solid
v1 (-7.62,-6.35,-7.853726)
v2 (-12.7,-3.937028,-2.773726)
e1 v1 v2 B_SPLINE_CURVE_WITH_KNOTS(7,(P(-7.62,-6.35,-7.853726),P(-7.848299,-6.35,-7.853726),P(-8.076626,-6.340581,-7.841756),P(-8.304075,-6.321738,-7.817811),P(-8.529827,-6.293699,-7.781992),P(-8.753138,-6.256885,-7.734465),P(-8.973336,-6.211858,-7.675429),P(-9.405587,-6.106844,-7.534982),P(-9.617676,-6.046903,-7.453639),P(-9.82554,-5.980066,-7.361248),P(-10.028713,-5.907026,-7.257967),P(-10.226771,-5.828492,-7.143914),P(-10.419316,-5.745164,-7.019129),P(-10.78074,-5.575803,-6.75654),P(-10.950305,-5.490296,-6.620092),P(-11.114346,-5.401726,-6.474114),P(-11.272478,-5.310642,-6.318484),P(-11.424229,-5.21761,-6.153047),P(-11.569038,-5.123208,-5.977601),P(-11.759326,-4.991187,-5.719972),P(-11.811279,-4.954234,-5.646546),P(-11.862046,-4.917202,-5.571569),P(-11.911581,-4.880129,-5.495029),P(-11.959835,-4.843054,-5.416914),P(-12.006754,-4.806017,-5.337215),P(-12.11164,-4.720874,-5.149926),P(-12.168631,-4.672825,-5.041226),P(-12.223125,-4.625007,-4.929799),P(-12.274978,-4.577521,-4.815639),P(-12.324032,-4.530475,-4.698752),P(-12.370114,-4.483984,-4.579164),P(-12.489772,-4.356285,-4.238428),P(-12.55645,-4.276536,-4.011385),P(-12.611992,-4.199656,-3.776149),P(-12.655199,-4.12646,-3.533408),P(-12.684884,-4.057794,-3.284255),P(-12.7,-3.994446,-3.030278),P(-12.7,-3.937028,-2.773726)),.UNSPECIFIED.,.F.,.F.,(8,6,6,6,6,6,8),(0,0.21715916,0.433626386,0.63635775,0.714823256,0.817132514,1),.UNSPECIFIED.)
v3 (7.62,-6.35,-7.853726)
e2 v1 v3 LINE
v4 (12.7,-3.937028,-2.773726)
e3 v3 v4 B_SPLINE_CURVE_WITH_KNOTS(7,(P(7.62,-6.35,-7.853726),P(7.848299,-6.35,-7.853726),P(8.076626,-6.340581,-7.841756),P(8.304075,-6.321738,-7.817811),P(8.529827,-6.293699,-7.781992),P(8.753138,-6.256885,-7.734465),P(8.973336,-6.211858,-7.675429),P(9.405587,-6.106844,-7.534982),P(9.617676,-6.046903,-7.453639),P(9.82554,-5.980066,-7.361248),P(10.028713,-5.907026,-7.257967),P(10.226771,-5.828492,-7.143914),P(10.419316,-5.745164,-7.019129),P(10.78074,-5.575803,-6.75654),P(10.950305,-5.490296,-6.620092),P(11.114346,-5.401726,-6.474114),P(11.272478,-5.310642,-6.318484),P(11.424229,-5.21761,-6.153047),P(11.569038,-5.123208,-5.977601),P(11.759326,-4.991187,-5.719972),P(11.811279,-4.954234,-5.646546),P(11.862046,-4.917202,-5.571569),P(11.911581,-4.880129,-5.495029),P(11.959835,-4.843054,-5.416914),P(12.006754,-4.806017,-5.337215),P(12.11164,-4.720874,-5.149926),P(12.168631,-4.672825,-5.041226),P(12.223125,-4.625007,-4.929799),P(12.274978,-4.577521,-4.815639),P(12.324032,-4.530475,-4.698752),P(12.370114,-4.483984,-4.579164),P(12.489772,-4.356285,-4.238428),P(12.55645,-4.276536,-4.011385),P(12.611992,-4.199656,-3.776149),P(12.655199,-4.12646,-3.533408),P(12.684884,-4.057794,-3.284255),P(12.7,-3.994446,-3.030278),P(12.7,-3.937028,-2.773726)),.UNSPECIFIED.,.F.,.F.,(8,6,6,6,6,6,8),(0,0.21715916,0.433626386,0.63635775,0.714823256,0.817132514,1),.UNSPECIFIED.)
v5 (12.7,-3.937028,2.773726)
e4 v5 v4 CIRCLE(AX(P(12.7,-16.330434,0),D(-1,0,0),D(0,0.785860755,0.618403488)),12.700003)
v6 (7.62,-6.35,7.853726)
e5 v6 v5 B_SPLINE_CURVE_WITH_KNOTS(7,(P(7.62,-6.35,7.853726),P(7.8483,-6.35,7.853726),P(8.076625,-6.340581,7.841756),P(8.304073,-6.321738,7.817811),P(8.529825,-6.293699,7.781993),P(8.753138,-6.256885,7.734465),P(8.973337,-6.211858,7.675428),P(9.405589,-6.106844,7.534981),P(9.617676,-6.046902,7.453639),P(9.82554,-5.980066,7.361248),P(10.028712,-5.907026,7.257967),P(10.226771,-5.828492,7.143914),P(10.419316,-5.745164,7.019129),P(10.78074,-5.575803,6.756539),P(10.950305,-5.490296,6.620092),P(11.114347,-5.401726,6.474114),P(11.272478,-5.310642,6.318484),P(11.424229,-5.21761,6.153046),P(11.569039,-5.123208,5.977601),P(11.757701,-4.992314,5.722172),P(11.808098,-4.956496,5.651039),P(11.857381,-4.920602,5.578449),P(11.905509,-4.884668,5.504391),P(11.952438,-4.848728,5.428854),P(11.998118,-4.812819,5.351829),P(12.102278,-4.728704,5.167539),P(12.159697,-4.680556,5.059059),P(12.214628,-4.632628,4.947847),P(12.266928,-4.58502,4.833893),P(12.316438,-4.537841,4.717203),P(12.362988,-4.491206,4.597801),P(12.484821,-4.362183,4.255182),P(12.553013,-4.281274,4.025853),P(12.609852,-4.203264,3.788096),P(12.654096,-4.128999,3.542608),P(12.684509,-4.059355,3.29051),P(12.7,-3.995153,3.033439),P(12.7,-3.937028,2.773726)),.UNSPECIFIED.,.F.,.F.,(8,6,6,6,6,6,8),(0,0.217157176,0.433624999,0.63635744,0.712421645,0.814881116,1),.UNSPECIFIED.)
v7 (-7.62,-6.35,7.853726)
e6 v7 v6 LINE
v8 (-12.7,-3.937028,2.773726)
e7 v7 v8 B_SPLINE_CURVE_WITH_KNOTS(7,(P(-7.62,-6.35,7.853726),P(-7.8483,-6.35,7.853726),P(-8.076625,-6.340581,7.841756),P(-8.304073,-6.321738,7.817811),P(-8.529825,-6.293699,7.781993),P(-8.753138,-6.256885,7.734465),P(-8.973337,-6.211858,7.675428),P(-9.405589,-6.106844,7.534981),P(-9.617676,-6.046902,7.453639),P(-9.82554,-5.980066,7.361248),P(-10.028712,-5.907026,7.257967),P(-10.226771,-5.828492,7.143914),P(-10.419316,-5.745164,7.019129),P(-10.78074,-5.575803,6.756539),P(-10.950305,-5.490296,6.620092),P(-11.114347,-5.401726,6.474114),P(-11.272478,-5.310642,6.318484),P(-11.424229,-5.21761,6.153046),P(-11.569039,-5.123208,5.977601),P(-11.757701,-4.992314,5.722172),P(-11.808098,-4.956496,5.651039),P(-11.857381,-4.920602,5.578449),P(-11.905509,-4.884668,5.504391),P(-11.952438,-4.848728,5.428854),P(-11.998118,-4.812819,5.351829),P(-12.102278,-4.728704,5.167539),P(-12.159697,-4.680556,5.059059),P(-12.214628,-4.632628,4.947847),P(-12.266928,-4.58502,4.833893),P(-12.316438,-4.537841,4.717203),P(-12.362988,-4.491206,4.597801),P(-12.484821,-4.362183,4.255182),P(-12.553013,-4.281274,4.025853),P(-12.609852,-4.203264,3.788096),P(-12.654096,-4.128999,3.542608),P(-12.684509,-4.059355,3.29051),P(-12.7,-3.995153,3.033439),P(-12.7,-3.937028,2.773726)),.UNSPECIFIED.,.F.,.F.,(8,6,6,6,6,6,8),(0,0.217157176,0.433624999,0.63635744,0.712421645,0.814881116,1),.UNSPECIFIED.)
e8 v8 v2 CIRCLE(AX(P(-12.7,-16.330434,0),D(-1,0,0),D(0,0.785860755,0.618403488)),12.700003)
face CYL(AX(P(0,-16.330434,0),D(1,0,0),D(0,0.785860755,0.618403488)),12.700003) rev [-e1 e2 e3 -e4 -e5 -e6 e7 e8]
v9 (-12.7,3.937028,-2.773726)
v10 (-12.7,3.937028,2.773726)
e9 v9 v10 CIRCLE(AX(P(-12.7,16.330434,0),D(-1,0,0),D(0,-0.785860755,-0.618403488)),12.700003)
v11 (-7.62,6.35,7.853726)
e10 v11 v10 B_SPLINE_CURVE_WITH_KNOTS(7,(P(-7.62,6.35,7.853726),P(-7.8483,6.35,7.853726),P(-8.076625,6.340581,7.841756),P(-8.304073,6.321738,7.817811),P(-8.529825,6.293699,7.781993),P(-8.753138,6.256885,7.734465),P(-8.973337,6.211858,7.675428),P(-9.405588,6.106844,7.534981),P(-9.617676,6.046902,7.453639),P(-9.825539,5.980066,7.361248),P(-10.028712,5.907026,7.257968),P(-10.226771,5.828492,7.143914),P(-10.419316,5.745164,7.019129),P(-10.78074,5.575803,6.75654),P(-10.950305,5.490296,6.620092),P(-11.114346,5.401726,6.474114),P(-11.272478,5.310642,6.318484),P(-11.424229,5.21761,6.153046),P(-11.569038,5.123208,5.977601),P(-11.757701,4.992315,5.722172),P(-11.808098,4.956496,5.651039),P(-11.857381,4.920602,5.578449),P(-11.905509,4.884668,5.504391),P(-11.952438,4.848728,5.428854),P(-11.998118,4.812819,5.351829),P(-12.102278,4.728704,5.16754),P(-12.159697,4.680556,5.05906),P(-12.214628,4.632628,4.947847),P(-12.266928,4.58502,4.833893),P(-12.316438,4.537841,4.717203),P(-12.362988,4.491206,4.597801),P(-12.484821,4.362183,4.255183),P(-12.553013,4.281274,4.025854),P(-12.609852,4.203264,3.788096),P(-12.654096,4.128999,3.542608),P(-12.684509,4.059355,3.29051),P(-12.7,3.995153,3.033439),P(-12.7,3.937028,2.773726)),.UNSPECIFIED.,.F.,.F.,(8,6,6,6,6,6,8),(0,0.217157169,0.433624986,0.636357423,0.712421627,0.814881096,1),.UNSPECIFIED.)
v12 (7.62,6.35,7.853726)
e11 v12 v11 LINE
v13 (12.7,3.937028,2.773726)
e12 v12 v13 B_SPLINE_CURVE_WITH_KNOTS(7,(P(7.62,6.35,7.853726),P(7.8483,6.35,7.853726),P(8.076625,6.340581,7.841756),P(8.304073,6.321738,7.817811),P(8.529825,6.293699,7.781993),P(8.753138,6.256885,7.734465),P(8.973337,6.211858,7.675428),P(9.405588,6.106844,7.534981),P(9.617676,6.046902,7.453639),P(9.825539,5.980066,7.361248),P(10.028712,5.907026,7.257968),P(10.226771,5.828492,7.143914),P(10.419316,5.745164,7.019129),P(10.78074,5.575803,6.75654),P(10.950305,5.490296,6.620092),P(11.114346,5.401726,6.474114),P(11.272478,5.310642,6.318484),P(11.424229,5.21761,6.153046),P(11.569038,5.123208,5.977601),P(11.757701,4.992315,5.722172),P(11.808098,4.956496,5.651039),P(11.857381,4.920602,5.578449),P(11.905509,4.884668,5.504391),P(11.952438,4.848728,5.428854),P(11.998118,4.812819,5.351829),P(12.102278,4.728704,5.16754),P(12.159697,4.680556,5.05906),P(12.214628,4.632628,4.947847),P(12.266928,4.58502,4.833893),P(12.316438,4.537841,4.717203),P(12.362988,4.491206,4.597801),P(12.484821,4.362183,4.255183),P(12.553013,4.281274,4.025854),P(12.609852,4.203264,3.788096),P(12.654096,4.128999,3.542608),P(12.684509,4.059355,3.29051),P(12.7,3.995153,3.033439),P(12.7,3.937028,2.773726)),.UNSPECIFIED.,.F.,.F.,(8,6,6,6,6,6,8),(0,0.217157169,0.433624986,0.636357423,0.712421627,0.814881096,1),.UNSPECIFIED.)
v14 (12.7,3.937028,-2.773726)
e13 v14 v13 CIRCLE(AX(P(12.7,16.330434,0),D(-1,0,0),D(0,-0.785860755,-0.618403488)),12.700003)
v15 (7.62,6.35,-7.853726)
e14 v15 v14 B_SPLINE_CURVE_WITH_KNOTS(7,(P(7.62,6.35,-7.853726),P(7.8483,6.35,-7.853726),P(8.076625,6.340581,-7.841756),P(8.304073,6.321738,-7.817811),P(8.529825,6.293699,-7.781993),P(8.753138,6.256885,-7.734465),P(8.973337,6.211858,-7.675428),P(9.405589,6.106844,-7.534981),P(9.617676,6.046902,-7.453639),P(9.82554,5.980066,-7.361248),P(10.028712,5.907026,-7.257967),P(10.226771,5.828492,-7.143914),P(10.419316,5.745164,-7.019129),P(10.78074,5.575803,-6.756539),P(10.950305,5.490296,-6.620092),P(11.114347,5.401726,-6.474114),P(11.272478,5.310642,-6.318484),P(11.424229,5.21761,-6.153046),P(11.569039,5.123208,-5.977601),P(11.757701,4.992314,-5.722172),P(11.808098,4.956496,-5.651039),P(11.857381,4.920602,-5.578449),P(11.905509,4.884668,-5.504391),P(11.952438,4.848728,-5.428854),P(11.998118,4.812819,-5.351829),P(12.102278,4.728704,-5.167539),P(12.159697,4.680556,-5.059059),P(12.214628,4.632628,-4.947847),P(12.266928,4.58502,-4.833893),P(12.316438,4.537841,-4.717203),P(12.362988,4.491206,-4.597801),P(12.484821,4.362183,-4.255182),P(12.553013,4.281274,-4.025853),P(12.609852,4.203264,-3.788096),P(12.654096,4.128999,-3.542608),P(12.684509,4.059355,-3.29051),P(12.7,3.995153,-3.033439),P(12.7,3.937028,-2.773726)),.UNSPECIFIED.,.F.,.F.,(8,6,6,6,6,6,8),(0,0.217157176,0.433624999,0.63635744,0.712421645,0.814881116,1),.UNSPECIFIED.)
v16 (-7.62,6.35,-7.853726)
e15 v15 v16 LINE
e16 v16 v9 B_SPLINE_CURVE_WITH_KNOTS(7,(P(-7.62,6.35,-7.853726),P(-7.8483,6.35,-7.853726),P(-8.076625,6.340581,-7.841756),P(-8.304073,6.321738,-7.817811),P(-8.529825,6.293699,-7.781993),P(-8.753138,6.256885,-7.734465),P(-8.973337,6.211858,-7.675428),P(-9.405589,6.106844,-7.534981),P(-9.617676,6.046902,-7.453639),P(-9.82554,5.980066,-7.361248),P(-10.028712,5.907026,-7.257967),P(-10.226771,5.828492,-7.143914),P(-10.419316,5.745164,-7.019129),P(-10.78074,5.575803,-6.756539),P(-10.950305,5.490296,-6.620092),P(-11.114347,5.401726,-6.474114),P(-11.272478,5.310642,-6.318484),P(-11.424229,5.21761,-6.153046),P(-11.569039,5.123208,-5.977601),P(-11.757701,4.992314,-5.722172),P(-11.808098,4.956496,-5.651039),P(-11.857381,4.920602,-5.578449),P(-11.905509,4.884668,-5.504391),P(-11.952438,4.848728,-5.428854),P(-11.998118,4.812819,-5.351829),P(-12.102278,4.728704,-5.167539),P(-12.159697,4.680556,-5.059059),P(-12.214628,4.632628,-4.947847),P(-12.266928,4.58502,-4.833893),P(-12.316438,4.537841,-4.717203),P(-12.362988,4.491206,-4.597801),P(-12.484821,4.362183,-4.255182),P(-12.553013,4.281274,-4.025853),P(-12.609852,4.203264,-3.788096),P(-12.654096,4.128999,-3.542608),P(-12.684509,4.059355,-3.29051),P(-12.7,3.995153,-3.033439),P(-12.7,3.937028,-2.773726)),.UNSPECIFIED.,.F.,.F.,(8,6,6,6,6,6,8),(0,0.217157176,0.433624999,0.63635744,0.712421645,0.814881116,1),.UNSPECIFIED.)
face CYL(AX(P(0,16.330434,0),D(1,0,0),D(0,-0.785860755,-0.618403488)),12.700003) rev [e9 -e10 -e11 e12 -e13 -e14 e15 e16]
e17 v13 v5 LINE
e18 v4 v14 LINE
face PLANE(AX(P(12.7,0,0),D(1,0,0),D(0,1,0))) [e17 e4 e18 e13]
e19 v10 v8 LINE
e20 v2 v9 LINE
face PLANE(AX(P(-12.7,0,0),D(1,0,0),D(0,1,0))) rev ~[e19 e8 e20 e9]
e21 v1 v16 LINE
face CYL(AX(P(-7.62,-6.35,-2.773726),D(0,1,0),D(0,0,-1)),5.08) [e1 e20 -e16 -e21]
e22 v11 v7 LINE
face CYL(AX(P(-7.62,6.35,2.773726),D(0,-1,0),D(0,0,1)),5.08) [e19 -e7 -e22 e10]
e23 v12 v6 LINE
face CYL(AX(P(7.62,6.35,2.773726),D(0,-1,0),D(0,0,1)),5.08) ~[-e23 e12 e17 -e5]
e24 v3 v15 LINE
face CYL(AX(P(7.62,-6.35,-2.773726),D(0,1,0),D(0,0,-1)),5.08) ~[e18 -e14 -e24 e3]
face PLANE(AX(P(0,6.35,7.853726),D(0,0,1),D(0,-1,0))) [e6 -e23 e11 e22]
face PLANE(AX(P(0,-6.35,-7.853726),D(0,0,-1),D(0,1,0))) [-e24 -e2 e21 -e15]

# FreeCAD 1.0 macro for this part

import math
import FreeCAD as App
import Part
import Sketcher
Q = App.Units.Quantity


def edges_at(feature, points):
    """Names of the edges that pass closest to the given points."""
    edges = feature.Shape.Edges
    near = lambda p: min(range(len(edges)), key=lambda i: edges[i].distToShape(Part.Vertex(*p))[0])
    return sorted({f"Edge{near(p) + 1}" for p in points})

doc = App.newDocument("Part")
body = doc.addObject("PartDesign::Body", "Body")

# Sketch on YZ plane
sketch1 = doc.addObject("Sketcher::SketchObject", "Sketch")
body.addObject(sketch1)
sketch1.AttachmentSupport = (doc.YZ_Plane, [""])
sketch1.MapMode = "FlatFace"
sketch1.addGeometry(Part.LineSegment(App.Vector(6.35, 7.853726, 0), App.Vector(-6.35, 7.853726, 0)), False)
sketch1.addGeometry(Part.ArcOfCircle(Part.Circle(App.Vector(-16.330434, 0, 0), App.Vector(0, 0, 1), 12.700003), math.radians(-38.199642), math.radians(38.199642)), False)
sketch1.addGeometry(Part.LineSegment(App.Vector(-6.35, -7.853726, 0), App.Vector(6.35, -7.853726, 0)), False)
sketch1.addGeometry(Part.ArcOfCircle(Part.Circle(App.Vector(16.330434, 0, 0), App.Vector(0, 0, 1), 12.700003), math.radians(141.800358), math.radians(218.199642)), False)
sketch1.addConstraint(Sketcher.Constraint("Coincident", 0, 2, 1, 2))
sketch1.addConstraint(Sketcher.Constraint("Coincident", 1, 1, 2, 1))
sketch1.addConstraint(Sketcher.Constraint("Coincident", 2, 2, 3, 2))
sketch1.addConstraint(Sketcher.Constraint("Coincident", 3, 1, 0, 1))
sketch1.addConstraint(Sketcher.Constraint("Horizontal", 0))
sketch1.addConstraint(Sketcher.Constraint("Horizontal", 2))
sketch1.addConstraint(Sketcher.Constraint("Equal", 1, 3))
sketch1.addConstraint(Sketcher.Constraint("Symmetric", 1, 3, 3, 3, -1, 1))
sketch1.addConstraint(Sketcher.Constraint("Symmetric", 0, 2, 1, 1, -1))
sketch1.addConstraint(Sketcher.Constraint("Radius", 1, Q("0.5000001 in")))
sketch1.addConstraint(Sketcher.Constraint("DistanceX", 0, 2, 0, 1, Q("0.5 in")))
sketch1.addConstraint(Sketcher.Constraint("DistanceY", 1, 1, 0, 2, Q("15.707452 mm")))
pad1 = doc.addObject("PartDesign::Pad", "Pad")
body.addObject(pad1)
pad1.Profile = sketch1
pad1.Length = Q("1 in")
pad1.Midplane = True
doc.recompute()

fillet = doc.addObject("PartDesign::Fillet", "Fillet")
body.addObject(fillet)
fillet.Base = (pad1, edges_at(pad1, [
    (-12.7, 0, 7.854),
    (-12.7, 0, -7.854),
    (12.7, 0, 7.854),
    (12.7, 0, -7.854),
]))
fillet.Radius = Q("0.2 in")

doc.recompute()
